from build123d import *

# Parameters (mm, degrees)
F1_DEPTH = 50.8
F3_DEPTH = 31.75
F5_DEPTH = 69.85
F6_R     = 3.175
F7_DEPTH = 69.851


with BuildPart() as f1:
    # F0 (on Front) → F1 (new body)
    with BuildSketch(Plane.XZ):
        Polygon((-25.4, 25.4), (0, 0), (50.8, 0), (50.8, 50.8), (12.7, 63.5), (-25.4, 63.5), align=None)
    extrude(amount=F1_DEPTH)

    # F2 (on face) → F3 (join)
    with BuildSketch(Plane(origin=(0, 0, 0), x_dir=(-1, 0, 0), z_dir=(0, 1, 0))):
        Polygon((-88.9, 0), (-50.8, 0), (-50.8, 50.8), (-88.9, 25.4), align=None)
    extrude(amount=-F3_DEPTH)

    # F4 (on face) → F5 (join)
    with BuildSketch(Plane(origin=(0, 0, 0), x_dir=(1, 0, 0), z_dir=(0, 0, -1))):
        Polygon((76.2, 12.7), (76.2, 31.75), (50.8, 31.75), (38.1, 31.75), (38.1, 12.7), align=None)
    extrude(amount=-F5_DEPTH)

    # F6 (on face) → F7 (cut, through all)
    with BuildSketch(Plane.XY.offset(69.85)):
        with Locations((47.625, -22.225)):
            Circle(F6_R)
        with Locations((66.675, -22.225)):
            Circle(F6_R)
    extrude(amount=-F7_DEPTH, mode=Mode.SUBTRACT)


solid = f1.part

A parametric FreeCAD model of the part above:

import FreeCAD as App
import Part
import Sketcher

V = App.Vector
Q = App.Units.Quantity


def add_polygon(sketch, points):
    """Adds a closed chain of lines whose ends are joined by coincident constraints."""
    first, n = sketch.GeometryCount, len(points)
    for a, b in zip(points, points[1:] + points[:1]):
        sketch.addGeometry(Part.LineSegment(App.Vector(*a, 0), App.Vector(*b, 0)), False)
    for i in range(n):
        sketch.addConstraint(Sketcher.Constraint("Coincident", first + i, 2, first + (i + 1) % n, 1))

doc = App.newDocument("Part")
body = doc.addObject("PartDesign::Body", "Body")

sketch1 = body.newObject("Sketcher::SketchObject", "Sketch")
sketch1.AttachmentSupport = (doc.getObject("XZ_Plane"), [""])
sketch1.MapMode = "FlatFace"
add_polygon(sketch1, [(-25, 25), (0, 0), (51, 0), (51, 51), (13, 64), (-25, 64)])
sketch1.addConstraint([
    Sketcher.Constraint("Horizontal", 1),
    Sketcher.Constraint("Vertical", 2),
    Sketcher.Constraint("Horizontal", 4),
    Sketcher.Constraint("Vertical", 5),
    Sketcher.Constraint("Coincident", 0, 2, -1, 1),
    Sketcher.Constraint("Equal", 1, 2),
    Sketcher.Constraint("Equal", 4, 5),
    Sketcher.Constraint("DistanceX", 1, 1, 1, 2, Q("2 in")),
    Sketcher.Constraint("DistanceX", 4, 2, 4, 1, Q("1.5 in")),
    Sketcher.Constraint("DistanceX", 4, 2, -1, 1, Q("1 in")),
    Sketcher.Constraint("DistanceY", -1, 1, 5, 2, Q("1 in")),
])
pad1 = body.newObject("PartDesign::Pad", "Pad")
pad1.Profile = sketch1
pad1.Length = Q("2 in")

sketch2 = body.newObject("Sketcher::SketchObject", "Sketch001")
sketch2.AttachmentSupport = (doc.getObject("XZ_Plane"), [""])
sketch2.MapMode = "FlatFace"
add_polygon(sketch2, [(89, 0), (51, 0), (51, 51), (89, 25)])
sketch2.addConstraint([
    Sketcher.Constraint("Horizontal", 0),
    Sketcher.Constraint("Vertical", 1),
    Sketcher.Constraint("Vertical", 3),
    Sketcher.Constraint("PointOnObject", 0, 2, -1),
    Sketcher.Constraint("DistanceY", 1, 1, 1, 2, Q("2 in")),
    Sketcher.Constraint("DistanceY", 3, 2, 3, 1, Q("1 in")),
    Sketcher.Constraint("DistanceX", 0, 2, 0, 1, Q("1.5 in")),
    Sketcher.Constraint("DistanceX", -1, 1, 0, 2, Q("2 in")),
])
pad2 = body.newObject("PartDesign::Pad", "Pad001")
pad2.Profile = sketch2
pad2.Length = Q("1.25 in")

sketch3 = body.newObject("Sketcher::SketchObject", "Sketch002")
sketch3.AttachmentSupport = (doc.getObject("XY_Plane"), [""])
sketch3.MapMode = "FlatFace"
add_polygon(sketch3, [(76, -13), (76, -32), (38, -32), (38, -13)])
sketch3.addConstraint([
    Sketcher.Constraint("Vertical", 0),
    Sketcher.Constraint("Horizontal", 1),
    Sketcher.Constraint("Vertical", 2),
    Sketcher.Constraint("Horizontal", 3),
    Sketcher.Constraint("DistanceX", 1, 2, 1, 1, Q("1.5 in")),
    Sketcher.Constraint("DistanceX", -1, 1, 0, 2, Q("3 in")),
    Sketcher.Constraint("DistanceY", 0, 2, 0, 1, Q("0.75 in")),
    Sketcher.Constraint("DistanceY", 2, 2, -1, 1, Q("0.5 in")),
])
pad3 = body.newObject("PartDesign::Pad", "Pad002")
pad3.Profile = sketch3
pad3.Length = Q("2.75 in")

sketch4 = body.newObject("Sketcher::SketchObject", "Sketch003")
sketch4.AttachmentSupport = (doc.getObject("XY_Plane"), [""])
sketch4.MapMode = "FlatFace"
sketch4.AttachmentOffset = App.Placement(V(0, 0, 2.75 * 25.4), App.Rotation())
sketch4.addGeometry([
    Part.Circle(V(47.6, -22.2, 0), V(0, 0, 1), 3.2),
    Part.Circle(V(66.7, -22.2, 0), V(0, 0, 1), 3.2),
], False)
sketch4.addConstraint([
    Sketcher.Constraint("Equal", 0, 1),
    Sketcher.Constraint("Horizontal", 0, 3, 1, 3),
    Sketcher.Constraint("Diameter", 0, Q("0.25 in")),
    Sketcher.Constraint("DistanceX", 0, 3, 1, 3, Q("0.75 in")),
    Sketcher.Constraint("DistanceX", -1, 1, 0, 3, Q("1.875 in")),
    Sketcher.Constraint("DistanceY", 0, 3, -1, 1, Q("0.875 in")),
])
pocket1 = body.newObject("PartDesign::Pocket", "Pocket")
pocket1.Profile = sketch4
pocket1.Type = "ThroughAll"

doc.recompute()
